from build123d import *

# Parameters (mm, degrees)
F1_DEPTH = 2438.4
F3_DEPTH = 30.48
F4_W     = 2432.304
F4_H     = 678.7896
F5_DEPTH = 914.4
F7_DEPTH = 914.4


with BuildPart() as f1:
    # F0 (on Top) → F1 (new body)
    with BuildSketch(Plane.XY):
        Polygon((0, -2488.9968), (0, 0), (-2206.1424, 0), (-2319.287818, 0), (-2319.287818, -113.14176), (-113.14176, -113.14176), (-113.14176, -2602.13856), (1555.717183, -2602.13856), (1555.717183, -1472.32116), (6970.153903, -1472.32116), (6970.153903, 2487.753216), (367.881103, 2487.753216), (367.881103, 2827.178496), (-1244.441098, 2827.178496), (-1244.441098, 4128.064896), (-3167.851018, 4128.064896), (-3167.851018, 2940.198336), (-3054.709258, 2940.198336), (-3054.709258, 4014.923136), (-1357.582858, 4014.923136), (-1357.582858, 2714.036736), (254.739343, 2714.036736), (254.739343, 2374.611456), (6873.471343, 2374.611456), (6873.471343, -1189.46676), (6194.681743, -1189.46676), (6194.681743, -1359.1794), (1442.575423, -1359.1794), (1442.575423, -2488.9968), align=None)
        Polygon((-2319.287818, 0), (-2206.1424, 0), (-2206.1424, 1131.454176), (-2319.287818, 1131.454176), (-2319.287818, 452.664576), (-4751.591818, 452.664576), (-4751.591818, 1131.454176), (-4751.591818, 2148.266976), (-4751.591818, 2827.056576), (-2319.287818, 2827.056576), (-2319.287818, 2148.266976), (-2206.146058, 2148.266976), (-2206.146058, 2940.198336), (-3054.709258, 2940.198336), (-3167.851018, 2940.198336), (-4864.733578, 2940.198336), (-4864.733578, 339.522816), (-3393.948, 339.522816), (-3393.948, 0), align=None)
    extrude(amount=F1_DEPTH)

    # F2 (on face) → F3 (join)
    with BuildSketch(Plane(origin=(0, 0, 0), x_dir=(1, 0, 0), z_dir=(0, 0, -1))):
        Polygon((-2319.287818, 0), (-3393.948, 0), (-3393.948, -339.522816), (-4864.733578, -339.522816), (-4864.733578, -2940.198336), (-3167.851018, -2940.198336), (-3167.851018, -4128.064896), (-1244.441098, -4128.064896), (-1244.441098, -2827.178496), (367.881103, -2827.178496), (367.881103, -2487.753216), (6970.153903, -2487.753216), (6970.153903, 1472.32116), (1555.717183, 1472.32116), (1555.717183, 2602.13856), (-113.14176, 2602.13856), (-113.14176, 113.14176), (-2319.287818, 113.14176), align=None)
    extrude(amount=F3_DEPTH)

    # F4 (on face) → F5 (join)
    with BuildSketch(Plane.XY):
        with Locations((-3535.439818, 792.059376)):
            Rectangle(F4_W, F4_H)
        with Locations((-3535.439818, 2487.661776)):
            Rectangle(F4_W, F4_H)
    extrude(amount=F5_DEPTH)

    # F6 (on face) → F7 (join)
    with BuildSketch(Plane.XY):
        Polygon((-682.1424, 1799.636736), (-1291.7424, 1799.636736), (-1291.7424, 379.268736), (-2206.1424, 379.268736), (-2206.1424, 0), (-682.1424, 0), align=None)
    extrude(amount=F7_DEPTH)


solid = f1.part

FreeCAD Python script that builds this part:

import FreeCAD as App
import Part
import Sketcher
from FreeCAD import Vector
Q = App.Units.Quantity

doc = App.newDocument("Part")
body = doc.addObject("PartDesign::Body", "Body")

# Sketch on XY plane
sketch1 = body.newObject("Sketcher::SketchObject", "Sketch")
sketch1.AttachmentSupport = (doc.getObject("XY_Plane"), [""])
sketch1.MapMode = "FlatFace"
sketch1.addGeometry([
    Part.LineSegment(Vector(-2319, 0, 0), Vector(-2319, -113, 0)),  # 0
    Part.LineSegment(Vector(-2319, -113, 0), Vector(-113, -113, 0)),  # 1
    Part.LineSegment(Vector(-113, -113, 0), Vector(-113, -2602, 0)),  # 2
    Part.LineSegment(Vector(-113, -2602, 0), Vector(1556, -2602, 0)),  # 3
    Part.LineSegment(Vector(1556, -2602, 0), Vector(1556, -1472, 0)),  # 4
    Part.LineSegment(Vector(1556, -1472, 0), Vector(6970, -1472, 0)),  # 5
    Part.LineSegment(Vector(6970, -1472, 0), Vector(6970, 2488, 0)),  # 6
    Part.LineSegment(Vector(6970, 2488, 0), Vector(368, 2488, 0)),  # 7
    Part.LineSegment(Vector(368, 2488, 0), Vector(368, 2827, 0)),  # 8
    Part.LineSegment(Vector(368, 2827, 0), Vector(-1244, 2827, 0)),  # 9
    Part.LineSegment(Vector(-1244, 2827, 0), Vector(-1244, 4128, 0)),  # 10
    Part.LineSegment(Vector(-1244, 4128, 0), Vector(-3168, 4128, 0)),  # 11
    Part.LineSegment(Vector(-3168, 4128, 0), Vector(-3168, 2940, 0)),  # 12
    Part.LineSegment(Vector(-3168, 2940, 0), Vector(-4865, 2940, 0)),  # 13
    Part.LineSegment(Vector(-4865, 2940, 0), Vector(-4865, 340, 0)),  # 14
    Part.LineSegment(Vector(-4865, 340, 0), Vector(-3394, 340, 0)),  # 15
    Part.LineSegment(Vector(-3394, 340, 0), Vector(-3394, 0, 0)),  # 16
    Part.LineSegment(Vector(-3394, 0, 0), Vector(-2319, 0, 0)),  # 17
    Part.LineSegment(Vector(0, -2489, 0), Vector(0, 0, 0)),  # 18
    Part.LineSegment(Vector(0, 0, 0), Vector(-2206, 0, 0)),  # 19
    Part.LineSegment(Vector(-2206, 0, 0), Vector(-2206, 1131, 0)),  # 20
    Part.LineSegment(Vector(-2206, 1131, 0), Vector(-2319, 1131, 0)),  # 21
    Part.LineSegment(Vector(-2319, 1131, 0), Vector(-2319, 453, 0)),  # 22
    Part.LineSegment(Vector(-2319, 453, 0), Vector(-4752, 453, 0)),  # 23
    Part.LineSegment(Vector(-4752, 453, 0), Vector(-4752, 2827, 0)),  # 24
    Part.LineSegment(Vector(-4752, 2827, 0), Vector(-2319, 2827, 0)),  # 25
    Part.LineSegment(Vector(-2319, 2827, 0), Vector(-2319, 2148, 0)),  # 26
    Part.LineSegment(Vector(-2319, 2148, 0), Vector(-2206, 2148, 0)),  # 27
    Part.LineSegment(Vector(-2206, 2148, 0), Vector(-2206, 2940, 0)),  # 28
    Part.LineSegment(Vector(-2206, 2940, 0), Vector(-3055, 2940, 0)),  # 29
    Part.LineSegment(Vector(-3055, 2940, 0), Vector(-3055, 4015, 0)),  # 30
    Part.LineSegment(Vector(-3055, 4015, 0), Vector(-1358, 4015, 0)),  # 31
    Part.LineSegment(Vector(-1358, 4015, 0), Vector(-1358, 2714, 0)),  # 32
    Part.LineSegment(Vector(-1358, 2714, 0), Vector(255, 2714, 0)),  # 33
    Part.LineSegment(Vector(255, 2714, 0), Vector(255, 2375, 0)),  # 34
    Part.LineSegment(Vector(255, 2375, 0), Vector(6873, 2375, 0)),  # 35
    Part.LineSegment(Vector(6873, 2375, 0), Vector(6873, -1189, 0)),  # 36
    Part.LineSegment(Vector(6873, -1189, 0), Vector(6195, -1189, 0)),  # 37
    Part.LineSegment(Vector(6195, -1189, 0), Vector(6195, -1359, 0)),  # 38
    Part.LineSegment(Vector(6195, -1359, 0), Vector(1443, -1359, 0)),  # 39
    Part.LineSegment(Vector(1443, -1359, 0), Vector(1443, -2489, 0)),  # 40
    Part.LineSegment(Vector(1443, -2489, 0), Vector(0, -2489, 0)),  # 41
], False)
sketch1.addConstraint([
    Sketcher.Constraint("Coincident", 0, 2, 1, 1),
    Sketcher.Constraint("Coincident", 1, 2, 2, 1),
    Sketcher.Constraint("Coincident", 2, 2, 3, 1),
    Sketcher.Constraint("Coincident", 3, 2, 4, 1),
    Sketcher.Constraint("Coincident", 4, 2, 5, 1),
    Sketcher.Constraint("Coincident", 5, 2, 6, 1),
    Sketcher.Constraint("Coincident", 6, 2, 7, 1),
    Sketcher.Constraint("Coincident", 7, 2, 8, 1),
    Sketcher.Constraint("Coincident", 8, 2, 9, 1),
    Sketcher.Constraint("Coincident", 9, 2, 10, 1),
    Sketcher.Constraint("Coincident", 10, 2, 11, 1),
    Sketcher.Constraint("Coincident", 11, 2, 12, 1),
    Sketcher.Constraint("Coincident", 12, 2, 13, 1),
    Sketcher.Constraint("Coincident", 13, 2, 14, 1),
    Sketcher.Constraint("Coincident", 14, 2, 15, 1),
    Sketcher.Constraint("Coincident", 15, 2, 16, 1),
    Sketcher.Constraint("Coincident", 16, 2, 17, 1),
    Sketcher.Constraint("Coincident", 17, 2, 0, 1),
    Sketcher.Constraint("Coincident", 18, 2, 19, 1),
    Sketcher.Constraint("Coincident", 19, 2, 20, 1),
    Sketcher.Constraint("Coincident", 20, 2, 21, 1),
    Sketcher.Constraint("Coincident", 21, 2, 22, 1),
    Sketcher.Constraint("Coincident", 22, 2, 23, 1),
    Sketcher.Constraint("Coincident", 23, 2, 24, 1),
    Sketcher.Constraint("Coincident", 24, 2, 25, 1),
    Sketcher.Constraint("Coincident", 25, 2, 26, 1),
    Sketcher.Constraint("Coincident", 26, 2, 27, 1),
    Sketcher.Constraint("Coincident", 27, 2, 28, 1),
    Sketcher.Constraint("Coincident", 28, 2, 29, 1),
    Sketcher.Constraint("Coincident", 29, 2, 30, 1),
    Sketcher.Constraint("Coincident", 30, 2, 31, 1),
    Sketcher.Constraint("Coincident", 31, 2, 32, 1),
    Sketcher.Constraint("Coincident", 32, 2, 33, 1),
    Sketcher.Constraint("Coincident", 33, 2, 34, 1),
    Sketcher.Constraint("Coincident", 34, 2, 35, 1),
    Sketcher.Constraint("Coincident", 35, 2, 36, 1),
    Sketcher.Constraint("Coincident", 36, 2, 37, 1),
    Sketcher.Constraint("Coincident", 37, 2, 38, 1),
    Sketcher.Constraint("Coincident", 38, 2, 39, 1),
    Sketcher.Constraint("Coincident", 39, 2, 40, 1),
    Sketcher.Constraint("Coincident", 40, 2, 41, 1),
    Sketcher.Constraint("Coincident", 41, 2, 18, 1),
    Sketcher.Constraint("Vertical", 0),
    Sketcher.Constraint("Horizontal", 1),
    Sketcher.Constraint("Vertical", 2),
    Sketcher.Constraint("Horizontal", 3),
    Sketcher.Constraint("Vertical", 4),
    Sketcher.Constraint("Horizontal", 5),
    Sketcher.Constraint("Vertical", 6),
    Sketcher.Constraint("Horizontal", 7),
    Sketcher.Constraint("Vertical", 8),
    Sketcher.Constraint("Horizontal", 9),
    Sketcher.Constraint("Vertical", 10),
    Sketcher.Constraint("Horizontal", 11),
    Sketcher.Constraint("Vertical", 12),
    Sketcher.Constraint("Horizontal", 13),
    Sketcher.Constraint("Vertical", 14),
    Sketcher.Constraint("Horizontal", 15),
    Sketcher.Constraint("Vertical", 16),
    Sketcher.Constraint("Horizontal", 17),
    Sketcher.Constraint("Vertical", 18),
    Sketcher.Constraint("Horizontal", 19),
    Sketcher.Constraint("Vertical", 20),
    Sketcher.Constraint("Horizontal", 21),
    Sketcher.Constraint("Vertical", 22),
    Sketcher.Constraint("Horizontal", 23),
    Sketcher.Constraint("Vertical", 24),
    Sketcher.Constraint("Horizontal", 25),
    Sketcher.Constraint("Vertical", 26),
    Sketcher.Constraint("Horizontal", 27),
    Sketcher.Constraint("Vertical", 28),
    Sketcher.Constraint("Horizontal", 29),
    Sketcher.Constraint("Vertical", 30),
    Sketcher.Constraint("Horizontal", 31),
    Sketcher.Constraint("Vertical", 32),
    Sketcher.Constraint("Horizontal", 33),
    Sketcher.Constraint("Vertical", 34),
    Sketcher.Constraint("Horizontal", 35),
    Sketcher.Constraint("Vertical", 36),
    Sketcher.Constraint("Horizontal", 37),
    Sketcher.Constraint("Vertical", 38),
    Sketcher.Constraint("Horizontal", 39),
    Sketcher.Constraint("Vertical", 40),
    Sketcher.Constraint("Horizontal", 41),
    Sketcher.Constraint("Coincident", 18, 2, -1, 1),
    Sketcher.Constraint("PointOnObject", 16, 2, -1),
    Sketcher.Constraint("Horizontal", 13, 2, 28, 2),
    Sketcher.Constraint("Vertical", 17, 2, 21, 2),
    Sketcher.Constraint("Vertical", 22, 2, 25, 2),
    Sketcher.Constraint("Equal", 9, 33),
    Sketcher.Constraint("Equal", 27, 0),
    Sketcher.Constraint("Equal", 2, 18),
    Sketcher.Constraint("Equal", 37, 22),
    Sketcher.Constraint("Equal", 22, 26),
    Sketcher.Constraint("Equal", 10, 32),
    Sketcher.Constraint("Equal", 8, 34),
    Sketcher.Constraint("Equal", 4, 40),
    Sketcher.Constraint("DistanceX", 23, 2, 23, 1, Q("95.76 in")),
    Sketcher.Constraint("DistanceX", 35, 1, 35, 2, Q("260.58 in")),
    Sketcher.Constraint("DistanceY", 24, 1, 24, 2, Q("93.48 in")),
    Sketcher.Constraint("DistanceX", 7, 2, 7, 1, Q("259.932 in")),
    Sketcher.Constraint("DistanceX", 19, 2, 19, 1, Q("86.856 in")),
    Sketcher.Constraint("DistanceX", 29, 2, 29, 1, Q("33.408 in")),
    Sketcher.Constraint("DistanceX", 31, 1, 31, 2, Q("66.816 in")),
    Sketcher.Constraint("DistanceX", 37, 2, 37, 1, Q("26.724 in")),
    Sketcher.Constraint("DistanceY", 2, 2, 2, 1, Q("97.992 in")),
    Sketcher.Constraint("DistanceY", 4, 1, 4, 2, Q("44.481 in")),
    Sketcher.Constraint("DistanceY", 10, 1, 10, 2, Q("51.216 in")),
    Sketcher.Constraint("DistanceY", 30, 1, 30, 2, Q("42.312 in")),
    Sketcher.Constraint("DistanceX", 15, 2, -1, 1, Q("133.62 in")),
    Sketcher.Constraint("DistanceX", 5, 1, 5, 2, Q("213.1668 in")),
    Sketcher.Constraint("DistanceX", 11, 2, 11, 1, Q("75.7248 in")),
    Sketcher.Constraint("DistanceX", 13, 2, 13, 1, Q("66.8064 in")),
    Sketcher.Constraint("DistanceX", 27, 1, 27, 2, Q("4.4544 in")),
    Sketcher.Constraint("DistanceX", 39, 2, 39, 1, Q("187.0908 in")),
    Sketcher.Constraint("DistanceY", 8, 1, 8, 2, Q("13.3632 in")),
    Sketcher.Constraint("DistanceY", 12, 2, 12, 1, Q("46.7664 in")),
    Sketcher.Constraint("DistanceY", 14, 2, 14, 1, Q("102.3888 in")),
    Sketcher.Constraint("DistanceY", 28, 1, 28, 2, Q("31.1784 in")),
    Sketcher.Constraint("DistanceY", 38, 2, 38, 1, Q("6.6816 in")),
    Sketcher.Constraint("DistanceX", 11, 2, 0, 2, Q("33.408 in")),
    Sketcher.Constraint("DistanceX", 9, 2, 9, 1, 1612.322201),
    Sketcher.Constraint("DistanceX", 1, 2, -1, 1, Q("4.4544 in")),
    Sketcher.Constraint("DistanceX", 15, 1, 15, 2, 1470.785578),
    Sketcher.Constraint("DistanceY", 6, 1, 6, 2, 3960.074376),
])
pad1 = body.newObject("PartDesign::Pad", "Pad")
pad1.Profile = sketch1
pad1.Length = Q("96 in")

# Sketch on XY plane
sketch2 = body.newObject("Sketcher::SketchObject", "Sketch001")
sketch2.AttachmentSupport = (doc.getObject("XY_Plane"), [""])
sketch2.MapMode = "FlatFace"
sketch2.addGeometry([
    Part.LineSegment(Vector(-2319, 0, 0), Vector(-3394, 0, 0)),  # 0
    Part.LineSegment(Vector(-3394, 0, 0), Vector(-3394, 340, 0)),  # 1
    Part.LineSegment(Vector(-3394, 340, 0), Vector(-4865, 340, 0)),  # 2
    Part.LineSegment(Vector(-4865, 340, 0), Vector(-4865, 2940, 0)),  # 3
    Part.LineSegment(Vector(-4865, 2940, 0), Vector(-3168, 2940, 0)),  # 4
    Part.LineSegment(Vector(-3168, 2940, 0), Vector(-3168, 4128, 0)),  # 5
    Part.LineSegment(Vector(-3168, 4128, 0), Vector(-1244, 4128, 0)),  # 6
    Part.LineSegment(Vector(-1244, 4128, 0), Vector(-1244, 2827, 0)),  # 7
    Part.LineSegment(Vector(-1244, 2827, 0), Vector(368, 2827, 0)),  # 8
    Part.LineSegment(Vector(368, 2827, 0), Vector(368, 2488, 0)),  # 9
    Part.LineSegment(Vector(368, 2488, 0), Vector(6970, 2488, 0)),  # 10
    Part.LineSegment(Vector(6970, 2488, 0), Vector(6970, -1472, 0)),  # 11
    Part.LineSegment(Vector(6970, -1472, 0), Vector(1556, -1472, 0)),  # 12
    Part.LineSegment(Vector(1556, -1472, 0), Vector(1556, -2602, 0)),  # 13
    Part.LineSegment(Vector(1556, -2602, 0), Vector(-113, -2602, 0)),  # 14
    Part.LineSegment(Vector(-113, -2602, 0), Vector(-113, -113, 0)),  # 15
    Part.LineSegment(Vector(-113, -113, 0), Vector(-2319, -113, 0)),  # 16
    Part.LineSegment(Vector(-2319, -113, 0), Vector(-2319, 0, 0)),  # 17
], False)
sketch2.addConstraint([
    Sketcher.Constraint("Coincident", 0, 2, 1, 1),
    Sketcher.Constraint("Coincident", 1, 2, 2, 1),
    Sketcher.Constraint("Coincident", 2, 2, 3, 1),
    Sketcher.Constraint("Coincident", 3, 2, 4, 1),
    Sketcher.Constraint("Coincident", 4, 2, 5, 1),
    Sketcher.Constraint("Coincident", 5, 2, 6, 1),
    Sketcher.Constraint("Coincident", 6, 2, 7, 1),
    Sketcher.Constraint("Coincident", 7, 2, 8, 1),
    Sketcher.Constraint("Coincident", 8, 2, 9, 1),
    Sketcher.Constraint("Coincident", 9, 2, 10, 1),
    Sketcher.Constraint("Coincident", 10, 2, 11, 1),
    Sketcher.Constraint("Coincident", 11, 2, 12, 1),
    Sketcher.Constraint("Coincident", 12, 2, 13, 1),
    Sketcher.Constraint("Coincident", 13, 2, 14, 1),
    Sketcher.Constraint("Coincident", 14, 2, 15, 1),
    Sketcher.Constraint("Coincident", 15, 2, 16, 1),
    Sketcher.Constraint("Coincident", 16, 2, 17, 1),
    Sketcher.Constraint("Coincident", 17, 2, 0, 1),
    Sketcher.Constraint("Horizontal", 0),
    Sketcher.Constraint("Vertical", 1),
    Sketcher.Constraint("Horizontal", 2),
    Sketcher.Constraint("Vertical", 3),
    Sketcher.Constraint("Horizontal", 4),
    Sketcher.Constraint("Vertical", 5),
    Sketcher.Constraint("Horizontal", 6),
    Sketcher.Constraint("Vertical", 7),
    Sketcher.Constraint("Horizontal", 8),
    Sketcher.Constraint("Vertical", 9),
    Sketcher.Constraint("Horizontal", 10),
    Sketcher.Constraint("Vertical", 11),
    Sketcher.Constraint("Horizontal", 12),
    Sketcher.Constraint("Vertical", 13),
    Sketcher.Constraint("Horizontal", 14),
    Sketcher.Constraint("Vertical", 15),
    Sketcher.Constraint("Horizontal", 16),
    Sketcher.Constraint("Vertical", 17),
    Sketcher.Constraint("PointOnObject", 0, 2, -1),
    Sketcher.Constraint("DistanceX", 10, 1, 10, 2, Q("259.932 in")),
    Sketcher.Constraint("DistanceY", 7, 2, 7, 1, Q("51.216 in")),
    Sketcher.Constraint("DistanceY", 13, 2, 13, 1, Q("44.481 in")),
    Sketcher.Constraint("DistanceY", 15, 1, 15, 2, Q("97.992 in")),
    Sketcher.Constraint("DistanceX", 0, 2, -1, 1, Q("133.62 in")),
    Sketcher.Constraint("DistanceX", 4, 1, 4, 2, Q("66.8064 in")),
    Sketcher.Constraint("DistanceX", 6, 1, 6, 2, Q("75.7248 in")),
    Sketcher.Constraint("DistanceX", 12, 2, 12, 1, Q("213.1668 in")),
    Sketcher.Constraint("DistanceY", 3, 1, 3, 2, Q("102.3888 in")),
    Sketcher.Constraint("DistanceY", 5, 1, 5, 2, Q("46.7664 in")),
    Sketcher.Constraint("DistanceY", 9, 2, 9, 1, Q("13.3632 in")),
    Sketcher.Constraint("DistanceY", 17, 1, 17, 2, Q("4.4544 in")),
    Sketcher.Constraint("DistanceX", 8, 1, 8, 2, 1612.322201),
    Sketcher.Constraint("DistanceX", 14, 2, -1, 1, Q("4.4544 in")),
    Sketcher.Constraint("DistanceX", 2, 2, 16, 2, Q("100.2144 in")),
    Sketcher.Constraint("DistanceX", 0, 2, 0, 1, 1074.660182),
    Sketcher.Constraint("DistanceY", 1, 1, 1, 2, 339.522816),
])
pad2 = body.newObject("PartDesign::Pad", "Pad001")
pad2.Profile = sketch2
pad2.Length = Q("1.2 in")
pad2.Reversed = True

# Sketch on XY plane
sketch3 = body.newObject("Sketcher::SketchObject", "Sketch002")
sketch3.AttachmentSupport = (doc.getObject("XY_Plane"), [""])
sketch3.MapMode = "FlatFace"
sketch3.addGeometry([
    Part.LineSegment(Vector(-4752, 1131, 0), Vector(-4752, 453, 0)),  # 0
    Part.LineSegment(Vector(-4752, 453, 0), Vector(-2319, 453, 0)),  # 1
    Part.LineSegment(Vector(-2319, 453, 0), Vector(-2319, 1131, 0)),  # 2
    Part.LineSegment(Vector(-2319, 1131, 0), Vector(-4752, 1131, 0)),  # 3
    Part.LineSegment(Vector(-4752, 2827, 0), Vector(-4752, 2148, 0)),  # 4
    Part.LineSegment(Vector(-4752, 2148, 0), Vector(-2319, 2148, 0)),  # 5
    Part.LineSegment(Vector(-2319, 2148, 0), Vector(-2319, 2827, 0)),  # 6
    Part.LineSegment(Vector(-2319, 2827, 0), Vector(-4752, 2827, 0)),  # 7
], False)
sketch3.addConstraint([
    Sketcher.Constraint("Coincident", 0, 2, 1, 1),
    Sketcher.Constraint("Coincident", 1, 2, 2, 1),
    Sketcher.Constraint("Coincident", 2, 2, 3, 1),
    Sketcher.Constraint("Coincident", 3, 2, 0, 1),
    Sketcher.Constraint("Coincident", 4, 2, 5, 1),
    Sketcher.Constraint("Coincident", 5, 2, 6, 1),
    Sketcher.Constraint("Coincident", 6, 2, 7, 1),
    Sketcher.Constraint("Coincident", 7, 2, 4, 1),
    Sketcher.Constraint("Vertical", 0),
    Sketcher.Constraint("Horizontal", 1),
    Sketcher.Constraint("Vertical", 2),
    Sketcher.Constraint("Horizontal", 3),
    Sketcher.Constraint("Vertical", 4),
    Sketcher.Constraint("Horizontal", 5),
    Sketcher.Constraint("Vertical", 6),
    Sketcher.Constraint("Horizontal", 7),
    Sketcher.Constraint("Vertical", 3, 2, 4, 2),
    Sketcher.Constraint("Vertical", 2, 2, 5, 2),
    Sketcher.Constraint("Equal", 2, 4),
    Sketcher.Constraint("DistanceX", 1, 1, 1, 2, Q("95.76 in")),
    Sketcher.Constraint("DistanceY", 0, 2, 0, 1, Q("26.724 in")),
    Sketcher.Constraint("DistanceY", 1, 2, 6, 2, Q("93.48 in")),
    Sketcher.Constraint("DistanceX", 0, 2, -1, 1, 4751.591818),
    Sketcher.Constraint("DistanceY", -1, 1, 0, 2, 452.664576),
])
pad3 = body.newObject("PartDesign::Pad", "Pad002")
pad3.Profile = sketch3
pad3.Length = Q("36 in")

# Sketch on XY plane
sketch4 = body.newObject("Sketcher::SketchObject", "Sketch003")
sketch4.AttachmentSupport = (doc.getObject("XY_Plane"), [""])
sketch4.MapMode = "FlatFace"
sketch4.addGeometry([
    Part.LineSegment(Vector(-682, 1800, 0), Vector(-1292, 1800, 0)),  # 0
    Part.LineSegment(Vector(-1292, 1800, 0), Vector(-1292, 379, 0)),  # 1
    Part.LineSegment(Vector(-1292, 379, 0), Vector(-2206, 379, 0)),  # 2
    Part.LineSegment(Vector(-2206, 379, 0), Vector(-2206, 0, 0)),  # 3
    Part.LineSegment(Vector(-2206, 0, 0), Vector(-682, 0, 0)),  # 4
    Part.LineSegment(Vector(-682, 0, 0), Vector(-682, 1800, 0)),  # 5
], False)
sketch4.addConstraint([
    Sketcher.Constraint("Coincident", 0, 2, 1, 1),
    Sketcher.Constraint("Coincident", 1, 2, 2, 1),
    Sketcher.Constraint("Coincident", 2, 2, 3, 1),
    Sketcher.Constraint("Coincident", 3, 2, 4, 1),
    Sketcher.Constraint("Coincident", 4, 2, 5, 1),
    Sketcher.Constraint("Coincident", 5, 2, 0, 1),
    Sketcher.Constraint("Horizontal", 0),
    Sketcher.Constraint("Vertical", 1),
    Sketcher.Constraint("Horizontal", 2),
    Sketcher.Constraint("Vertical", 3),
    Sketcher.Constraint("Horizontal", 4),
    Sketcher.Constraint("Vertical", 5),
    Sketcher.Constraint("PointOnObject", 3, 2, -1),
    Sketcher.Constraint("DistanceX", 0, 2, 0, 1, Q("24 in")),
    Sketcher.Constraint("DistanceX", 2, 2, 2, 1, Q("36 in")),
    Sketcher.Constraint("DistanceY", 1, 2, 1, 1, Q("55.92 in")),
    Sketcher.Constraint("DistanceX", 0, 2, -1, 1, Q("50.856 in")),
    Sketcher.Constraint("DistanceY", 3, 2, 3, 1, 379.268736),
])
pad4 = body.newObject("PartDesign::Pad", "Pad003")
pad4.Profile = sketch4
pad4.Length = Q("36 in")

doc.recompute()
